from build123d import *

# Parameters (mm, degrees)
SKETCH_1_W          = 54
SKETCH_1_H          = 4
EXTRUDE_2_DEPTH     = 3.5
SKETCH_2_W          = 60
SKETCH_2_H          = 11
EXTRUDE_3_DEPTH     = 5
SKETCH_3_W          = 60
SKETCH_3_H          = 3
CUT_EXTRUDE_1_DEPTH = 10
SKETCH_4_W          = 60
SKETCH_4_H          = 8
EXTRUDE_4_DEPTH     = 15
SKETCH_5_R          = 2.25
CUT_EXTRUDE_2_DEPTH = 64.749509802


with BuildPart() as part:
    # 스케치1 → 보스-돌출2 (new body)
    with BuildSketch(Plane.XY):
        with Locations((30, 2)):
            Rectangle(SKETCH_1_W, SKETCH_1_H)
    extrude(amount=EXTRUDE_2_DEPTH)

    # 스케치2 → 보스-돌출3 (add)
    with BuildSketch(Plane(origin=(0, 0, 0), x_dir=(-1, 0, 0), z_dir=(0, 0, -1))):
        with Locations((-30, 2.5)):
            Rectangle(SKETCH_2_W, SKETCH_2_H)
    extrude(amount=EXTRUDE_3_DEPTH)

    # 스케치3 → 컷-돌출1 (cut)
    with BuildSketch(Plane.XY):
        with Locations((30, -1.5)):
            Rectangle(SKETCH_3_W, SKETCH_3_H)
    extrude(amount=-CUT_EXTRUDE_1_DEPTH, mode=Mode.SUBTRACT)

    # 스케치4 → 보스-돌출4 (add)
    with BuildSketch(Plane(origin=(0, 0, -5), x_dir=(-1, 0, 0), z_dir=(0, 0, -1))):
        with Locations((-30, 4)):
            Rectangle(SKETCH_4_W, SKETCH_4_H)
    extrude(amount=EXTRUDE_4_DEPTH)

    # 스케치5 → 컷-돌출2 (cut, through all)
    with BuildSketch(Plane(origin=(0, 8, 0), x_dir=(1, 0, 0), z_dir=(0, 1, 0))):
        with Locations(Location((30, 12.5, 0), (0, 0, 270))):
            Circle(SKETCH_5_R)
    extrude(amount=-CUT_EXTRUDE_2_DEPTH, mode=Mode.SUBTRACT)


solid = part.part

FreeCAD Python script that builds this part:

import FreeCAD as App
import Part
import Sketcher

V = App.Vector
Q = App.Units.Quantity


def add_polygon(sketch, points):
    """Adds a closed chain of lines whose ends are joined by coincident constraints."""
    first, n = sketch.GeometryCount, len(points)
    for a, b in zip(points, points[1:] + points[:1]):
        sketch.addGeometry(Part.LineSegment(App.Vector(*a, 0), App.Vector(*b, 0)), False)
    for i in range(n):
        sketch.addConstraint(Sketcher.Constraint("Coincident", first + i, 2, first + (i + 1) % n, 1))

doc = App.newDocument("Part")
body = doc.addObject("PartDesign::Body", "Body")

sketch1 = body.newObject("Sketcher::SketchObject", "Sketch")
sketch1.AttachmentSupport = (doc.getObject("XY_Plane"), [""])
sketch1.MapMode = "FlatFace"
add_polygon(sketch1, [(3, 4), (3, 0), (57, 0), (57, 4)])
sketch1.addConstraint([
    Sketcher.Constraint("Vertical", 0),
    Sketcher.Constraint("Horizontal", 1),
    Sketcher.Constraint("Vertical", 2),
    Sketcher.Constraint("Horizontal", 3),
    Sketcher.Constraint("PointOnObject", 0, 2, -1),
    Sketcher.Constraint("DistanceX", 1, 1, 1, 2, Q("54 mm")),
    Sketcher.Constraint("DistanceY", 0, 2, 0, 1, Q("4 mm")),
    Sketcher.Constraint("DistanceX", -1, 1, 0, 2, Q("3 mm")),
])
pad1 = body.newObject("PartDesign::Pad", "Pad")
pad1.Profile = sketch1
pad1.Length = 3.5

sketch2 = body.newObject("Sketcher::SketchObject", "Sketch001")
sketch2.AttachmentSupport = (doc.getObject("XY_Plane"), [""])
sketch2.MapMode = "FlatFace"
add_polygon(sketch2, [(60, 8), (60, -3), (0, -3), (0, 8)])
sketch2.addConstraint([
    Sketcher.Constraint("Vertical", 0),
    Sketcher.Constraint("Horizontal", 1),
    Sketcher.Constraint("Vertical", 2),
    Sketcher.Constraint("Horizontal", 3),
    Sketcher.Constraint("PointOnObject", 1, 2, -2),
    Sketcher.Constraint("DistanceX", 1, 2, 1, 1, Q("60 mm")),
    Sketcher.Constraint("DistanceY", 0, 2, 0, 1, Q("11 mm")),
    Sketcher.Constraint("DistanceY", 0, 2, -1, 1, Q("3 mm")),
])
pad2 = body.newObject("PartDesign::Pad", "Pad001")
pad2.Profile = sketch2
pad2.Length = 5
pad2.Reversed = True

sketch3 = body.newObject("Sketcher::SketchObject", "Sketch002")
sketch3.AttachmentSupport = (doc.getObject("XY_Plane"), [""])
sketch3.MapMode = "FlatFace"
add_polygon(sketch3, [(0, 0), (0, -3), (60, -3), (60, 0)])
sketch3.addConstraint([
    Sketcher.Constraint("Vertical", 0),
    Sketcher.Constraint("Horizontal", 1),
    Sketcher.Constraint("Vertical", 2),
    Sketcher.Constraint("Horizontal", 3),
    Sketcher.Constraint("Coincident", 3, 2, -1, 1),
    Sketcher.Constraint("DistanceX", 1, 1, 1, 2, Q("60 mm")),
    Sketcher.Constraint("DistanceY", 0, 2, 0, 1, Q("3 mm")),
])
pocket1 = body.newObject("PartDesign::Pocket", "Pocket")
pocket1.Profile = sketch3
pocket1.Length = 10

sketch4 = body.newObject("Sketcher::SketchObject", "Sketch003")
sketch4.AttachmentSupport = (doc.getObject("XY_Plane"), [""])
sketch4.MapMode = "FlatFace"
sketch4.AttachmentOffset = App.Placement(V(0, 0, -5), App.Rotation())
add_polygon(sketch4, [(60, 8), (60, 0), (0, 0), (0, 8)])
sketch4.addConstraint([
    Sketcher.Constraint("Vertical", 0),
    Sketcher.Constraint("Horizontal", 1),
    Sketcher.Constraint("Vertical", 2),
    Sketcher.Constraint("Horizontal", 3),
    Sketcher.Constraint("Coincident", 1, 2, -1, 1),
    Sketcher.Constraint("DistanceX", 1, 2, 1, 1, Q("60 mm")),
    Sketcher.Constraint("DistanceY", 0, 2, 0, 1, Q("8 mm")),
])
pad3 = body.newObject("PartDesign::Pad", "Pad002")
pad3.Profile = sketch4
pad3.Length = 15
pad3.Reversed = True

sketch5 = body.newObject("Sketcher::SketchObject", "Sketch004")
sketch5.AttachmentSupport = (doc.getObject("XZ_Plane"), [""])
sketch5.MapMode = "FlatFace"
sketch5.AttachmentOffset = App.Placement(V(0, 0, -8), App.Rotation())
sketch5.addGeometry(Part.Circle(V(30, -12.5, 0), V(0, 0, 1), 2.25), False)
sketch5.addConstraint([
    Sketcher.Constraint("Diameter", 0, Q("4.5 mm")),
    Sketcher.Constraint("DistanceX", -1, 1, 0, 3, Q("30 mm")),
    Sketcher.Constraint("DistanceY", 0, 3, -1, 1, Q("12.5 mm")),
])
pocket2 = body.newObject("PartDesign::Pocket", "Pocket001")
pocket2.Profile = sketch5
pocket2.Type = "ThroughAll"
pocket2.Reversed = True

doc.recompute()
